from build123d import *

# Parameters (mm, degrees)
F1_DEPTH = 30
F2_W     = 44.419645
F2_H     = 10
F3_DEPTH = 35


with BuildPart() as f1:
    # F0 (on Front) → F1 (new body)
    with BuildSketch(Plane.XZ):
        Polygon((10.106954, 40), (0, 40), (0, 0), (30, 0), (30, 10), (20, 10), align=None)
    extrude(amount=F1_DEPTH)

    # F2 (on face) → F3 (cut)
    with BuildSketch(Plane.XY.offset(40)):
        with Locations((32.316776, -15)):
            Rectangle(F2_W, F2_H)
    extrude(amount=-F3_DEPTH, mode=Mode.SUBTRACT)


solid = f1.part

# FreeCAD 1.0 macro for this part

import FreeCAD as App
import Part
import Sketcher

V = App.Vector


def add_polygon(sketch, points):
    """Adds a closed chain of lines whose ends are joined by coincident constraints."""
    first, n = sketch.GeometryCount, len(points)
    for a, b in zip(points, points[1:] + points[:1]):
        sketch.addGeometry(Part.LineSegment(App.Vector(*a, 0), App.Vector(*b, 0)), False)
    for i in range(n):
        sketch.addConstraint(Sketcher.Constraint("Coincident", first + i, 2, first + (i + 1) % n, 1))

doc = App.newDocument("Part")
body = doc.addObject("PartDesign::Body", "Body")

# Sketch on XZ plane
sketch1 = body.newObject("Sketcher::SketchObject", "Sketch")
sketch1.AttachmentSupport = (doc.getObject("XZ_Plane"), [""])
sketch1.MapMode = "FlatFace"
add_polygon(sketch1, [(10.106954, 40), (0, 40), (0, 0), (30, 0), (30, 10), (20, 10)])  # lines 0-5
sketch1.addConstraint(Sketcher.Constraint("Horizontal", 0))
sketch1.addConstraint(Sketcher.Constraint("Vertical", 1))
sketch1.addConstraint(Sketcher.Constraint("Horizontal", 2))
sketch1.addConstraint(Sketcher.Constraint("Vertical", 3))
sketch1.addConstraint(Sketcher.Constraint("Horizontal", 4))
sketch1.addConstraint(Sketcher.Constraint("Coincident", 1, 2, -1, 1))
sketch1.addConstraint(Sketcher.Constraint("Equal", 4, 3))
sketch1.addConstraint(Sketcher.Constraint("DistanceX", 2, 1, 2, 2, 30.0))
sketch1.addConstraint(Sketcher.Constraint("DistanceX", 4, 2, 4, 1, 10.0))
sketch1.addConstraint(Sketcher.Constraint("DistanceY", 1, 2, 1, 1, 40.0))
sketch1.addConstraint(Sketcher.Constraint("DistanceX", 0, 2, 0, 1, 10.106954))
pad1 = body.newObject("PartDesign::Pad", "Pad")
pad1.Profile = sketch1
pad1.Length = 30

# Sketch on XY plane
sketch2 = body.newObject("Sketcher::SketchObject", "Sketch001")
sketch2.AttachmentSupport = (doc.getObject("XY_Plane"), [""])
sketch2.MapMode = "FlatFace"
sketch2.AttachmentOffset = App.Placement(V(0, 0, 40), App.Rotation())
add_polygon(sketch2, [(10.106953, -10), (10.106953, -20), (54.526598, -20), (54.526598, -10)])  # lines 0-3
sketch2.addConstraint(Sketcher.Constraint("Vertical", 0))
sketch2.addConstraint(Sketcher.Constraint("Horizontal", 1))
sketch2.addConstraint(Sketcher.Constraint("Vertical", 2))
sketch2.addConstraint(Sketcher.Constraint("Horizontal", 3))
sketch2.addConstraint(Sketcher.Constraint("DistanceY", 0, 2, 0, 1, 10.0))
sketch2.addConstraint(Sketcher.Constraint("DistanceY", 0, 2, -1, 1, 20.0))
sketch2.addConstraint(Sketcher.Constraint("DistanceX", -1, 1, 1, 2, 54.526598))
sketch2.addConstraint(Sketcher.Constraint("DistanceX", 1, 1, 1, 2, 44.419645))
pocket1 = body.newObject("PartDesign::Pocket", "Pocket")
pocket1.Profile = sketch2
pocket1.Length = 35

doc.recompute()
